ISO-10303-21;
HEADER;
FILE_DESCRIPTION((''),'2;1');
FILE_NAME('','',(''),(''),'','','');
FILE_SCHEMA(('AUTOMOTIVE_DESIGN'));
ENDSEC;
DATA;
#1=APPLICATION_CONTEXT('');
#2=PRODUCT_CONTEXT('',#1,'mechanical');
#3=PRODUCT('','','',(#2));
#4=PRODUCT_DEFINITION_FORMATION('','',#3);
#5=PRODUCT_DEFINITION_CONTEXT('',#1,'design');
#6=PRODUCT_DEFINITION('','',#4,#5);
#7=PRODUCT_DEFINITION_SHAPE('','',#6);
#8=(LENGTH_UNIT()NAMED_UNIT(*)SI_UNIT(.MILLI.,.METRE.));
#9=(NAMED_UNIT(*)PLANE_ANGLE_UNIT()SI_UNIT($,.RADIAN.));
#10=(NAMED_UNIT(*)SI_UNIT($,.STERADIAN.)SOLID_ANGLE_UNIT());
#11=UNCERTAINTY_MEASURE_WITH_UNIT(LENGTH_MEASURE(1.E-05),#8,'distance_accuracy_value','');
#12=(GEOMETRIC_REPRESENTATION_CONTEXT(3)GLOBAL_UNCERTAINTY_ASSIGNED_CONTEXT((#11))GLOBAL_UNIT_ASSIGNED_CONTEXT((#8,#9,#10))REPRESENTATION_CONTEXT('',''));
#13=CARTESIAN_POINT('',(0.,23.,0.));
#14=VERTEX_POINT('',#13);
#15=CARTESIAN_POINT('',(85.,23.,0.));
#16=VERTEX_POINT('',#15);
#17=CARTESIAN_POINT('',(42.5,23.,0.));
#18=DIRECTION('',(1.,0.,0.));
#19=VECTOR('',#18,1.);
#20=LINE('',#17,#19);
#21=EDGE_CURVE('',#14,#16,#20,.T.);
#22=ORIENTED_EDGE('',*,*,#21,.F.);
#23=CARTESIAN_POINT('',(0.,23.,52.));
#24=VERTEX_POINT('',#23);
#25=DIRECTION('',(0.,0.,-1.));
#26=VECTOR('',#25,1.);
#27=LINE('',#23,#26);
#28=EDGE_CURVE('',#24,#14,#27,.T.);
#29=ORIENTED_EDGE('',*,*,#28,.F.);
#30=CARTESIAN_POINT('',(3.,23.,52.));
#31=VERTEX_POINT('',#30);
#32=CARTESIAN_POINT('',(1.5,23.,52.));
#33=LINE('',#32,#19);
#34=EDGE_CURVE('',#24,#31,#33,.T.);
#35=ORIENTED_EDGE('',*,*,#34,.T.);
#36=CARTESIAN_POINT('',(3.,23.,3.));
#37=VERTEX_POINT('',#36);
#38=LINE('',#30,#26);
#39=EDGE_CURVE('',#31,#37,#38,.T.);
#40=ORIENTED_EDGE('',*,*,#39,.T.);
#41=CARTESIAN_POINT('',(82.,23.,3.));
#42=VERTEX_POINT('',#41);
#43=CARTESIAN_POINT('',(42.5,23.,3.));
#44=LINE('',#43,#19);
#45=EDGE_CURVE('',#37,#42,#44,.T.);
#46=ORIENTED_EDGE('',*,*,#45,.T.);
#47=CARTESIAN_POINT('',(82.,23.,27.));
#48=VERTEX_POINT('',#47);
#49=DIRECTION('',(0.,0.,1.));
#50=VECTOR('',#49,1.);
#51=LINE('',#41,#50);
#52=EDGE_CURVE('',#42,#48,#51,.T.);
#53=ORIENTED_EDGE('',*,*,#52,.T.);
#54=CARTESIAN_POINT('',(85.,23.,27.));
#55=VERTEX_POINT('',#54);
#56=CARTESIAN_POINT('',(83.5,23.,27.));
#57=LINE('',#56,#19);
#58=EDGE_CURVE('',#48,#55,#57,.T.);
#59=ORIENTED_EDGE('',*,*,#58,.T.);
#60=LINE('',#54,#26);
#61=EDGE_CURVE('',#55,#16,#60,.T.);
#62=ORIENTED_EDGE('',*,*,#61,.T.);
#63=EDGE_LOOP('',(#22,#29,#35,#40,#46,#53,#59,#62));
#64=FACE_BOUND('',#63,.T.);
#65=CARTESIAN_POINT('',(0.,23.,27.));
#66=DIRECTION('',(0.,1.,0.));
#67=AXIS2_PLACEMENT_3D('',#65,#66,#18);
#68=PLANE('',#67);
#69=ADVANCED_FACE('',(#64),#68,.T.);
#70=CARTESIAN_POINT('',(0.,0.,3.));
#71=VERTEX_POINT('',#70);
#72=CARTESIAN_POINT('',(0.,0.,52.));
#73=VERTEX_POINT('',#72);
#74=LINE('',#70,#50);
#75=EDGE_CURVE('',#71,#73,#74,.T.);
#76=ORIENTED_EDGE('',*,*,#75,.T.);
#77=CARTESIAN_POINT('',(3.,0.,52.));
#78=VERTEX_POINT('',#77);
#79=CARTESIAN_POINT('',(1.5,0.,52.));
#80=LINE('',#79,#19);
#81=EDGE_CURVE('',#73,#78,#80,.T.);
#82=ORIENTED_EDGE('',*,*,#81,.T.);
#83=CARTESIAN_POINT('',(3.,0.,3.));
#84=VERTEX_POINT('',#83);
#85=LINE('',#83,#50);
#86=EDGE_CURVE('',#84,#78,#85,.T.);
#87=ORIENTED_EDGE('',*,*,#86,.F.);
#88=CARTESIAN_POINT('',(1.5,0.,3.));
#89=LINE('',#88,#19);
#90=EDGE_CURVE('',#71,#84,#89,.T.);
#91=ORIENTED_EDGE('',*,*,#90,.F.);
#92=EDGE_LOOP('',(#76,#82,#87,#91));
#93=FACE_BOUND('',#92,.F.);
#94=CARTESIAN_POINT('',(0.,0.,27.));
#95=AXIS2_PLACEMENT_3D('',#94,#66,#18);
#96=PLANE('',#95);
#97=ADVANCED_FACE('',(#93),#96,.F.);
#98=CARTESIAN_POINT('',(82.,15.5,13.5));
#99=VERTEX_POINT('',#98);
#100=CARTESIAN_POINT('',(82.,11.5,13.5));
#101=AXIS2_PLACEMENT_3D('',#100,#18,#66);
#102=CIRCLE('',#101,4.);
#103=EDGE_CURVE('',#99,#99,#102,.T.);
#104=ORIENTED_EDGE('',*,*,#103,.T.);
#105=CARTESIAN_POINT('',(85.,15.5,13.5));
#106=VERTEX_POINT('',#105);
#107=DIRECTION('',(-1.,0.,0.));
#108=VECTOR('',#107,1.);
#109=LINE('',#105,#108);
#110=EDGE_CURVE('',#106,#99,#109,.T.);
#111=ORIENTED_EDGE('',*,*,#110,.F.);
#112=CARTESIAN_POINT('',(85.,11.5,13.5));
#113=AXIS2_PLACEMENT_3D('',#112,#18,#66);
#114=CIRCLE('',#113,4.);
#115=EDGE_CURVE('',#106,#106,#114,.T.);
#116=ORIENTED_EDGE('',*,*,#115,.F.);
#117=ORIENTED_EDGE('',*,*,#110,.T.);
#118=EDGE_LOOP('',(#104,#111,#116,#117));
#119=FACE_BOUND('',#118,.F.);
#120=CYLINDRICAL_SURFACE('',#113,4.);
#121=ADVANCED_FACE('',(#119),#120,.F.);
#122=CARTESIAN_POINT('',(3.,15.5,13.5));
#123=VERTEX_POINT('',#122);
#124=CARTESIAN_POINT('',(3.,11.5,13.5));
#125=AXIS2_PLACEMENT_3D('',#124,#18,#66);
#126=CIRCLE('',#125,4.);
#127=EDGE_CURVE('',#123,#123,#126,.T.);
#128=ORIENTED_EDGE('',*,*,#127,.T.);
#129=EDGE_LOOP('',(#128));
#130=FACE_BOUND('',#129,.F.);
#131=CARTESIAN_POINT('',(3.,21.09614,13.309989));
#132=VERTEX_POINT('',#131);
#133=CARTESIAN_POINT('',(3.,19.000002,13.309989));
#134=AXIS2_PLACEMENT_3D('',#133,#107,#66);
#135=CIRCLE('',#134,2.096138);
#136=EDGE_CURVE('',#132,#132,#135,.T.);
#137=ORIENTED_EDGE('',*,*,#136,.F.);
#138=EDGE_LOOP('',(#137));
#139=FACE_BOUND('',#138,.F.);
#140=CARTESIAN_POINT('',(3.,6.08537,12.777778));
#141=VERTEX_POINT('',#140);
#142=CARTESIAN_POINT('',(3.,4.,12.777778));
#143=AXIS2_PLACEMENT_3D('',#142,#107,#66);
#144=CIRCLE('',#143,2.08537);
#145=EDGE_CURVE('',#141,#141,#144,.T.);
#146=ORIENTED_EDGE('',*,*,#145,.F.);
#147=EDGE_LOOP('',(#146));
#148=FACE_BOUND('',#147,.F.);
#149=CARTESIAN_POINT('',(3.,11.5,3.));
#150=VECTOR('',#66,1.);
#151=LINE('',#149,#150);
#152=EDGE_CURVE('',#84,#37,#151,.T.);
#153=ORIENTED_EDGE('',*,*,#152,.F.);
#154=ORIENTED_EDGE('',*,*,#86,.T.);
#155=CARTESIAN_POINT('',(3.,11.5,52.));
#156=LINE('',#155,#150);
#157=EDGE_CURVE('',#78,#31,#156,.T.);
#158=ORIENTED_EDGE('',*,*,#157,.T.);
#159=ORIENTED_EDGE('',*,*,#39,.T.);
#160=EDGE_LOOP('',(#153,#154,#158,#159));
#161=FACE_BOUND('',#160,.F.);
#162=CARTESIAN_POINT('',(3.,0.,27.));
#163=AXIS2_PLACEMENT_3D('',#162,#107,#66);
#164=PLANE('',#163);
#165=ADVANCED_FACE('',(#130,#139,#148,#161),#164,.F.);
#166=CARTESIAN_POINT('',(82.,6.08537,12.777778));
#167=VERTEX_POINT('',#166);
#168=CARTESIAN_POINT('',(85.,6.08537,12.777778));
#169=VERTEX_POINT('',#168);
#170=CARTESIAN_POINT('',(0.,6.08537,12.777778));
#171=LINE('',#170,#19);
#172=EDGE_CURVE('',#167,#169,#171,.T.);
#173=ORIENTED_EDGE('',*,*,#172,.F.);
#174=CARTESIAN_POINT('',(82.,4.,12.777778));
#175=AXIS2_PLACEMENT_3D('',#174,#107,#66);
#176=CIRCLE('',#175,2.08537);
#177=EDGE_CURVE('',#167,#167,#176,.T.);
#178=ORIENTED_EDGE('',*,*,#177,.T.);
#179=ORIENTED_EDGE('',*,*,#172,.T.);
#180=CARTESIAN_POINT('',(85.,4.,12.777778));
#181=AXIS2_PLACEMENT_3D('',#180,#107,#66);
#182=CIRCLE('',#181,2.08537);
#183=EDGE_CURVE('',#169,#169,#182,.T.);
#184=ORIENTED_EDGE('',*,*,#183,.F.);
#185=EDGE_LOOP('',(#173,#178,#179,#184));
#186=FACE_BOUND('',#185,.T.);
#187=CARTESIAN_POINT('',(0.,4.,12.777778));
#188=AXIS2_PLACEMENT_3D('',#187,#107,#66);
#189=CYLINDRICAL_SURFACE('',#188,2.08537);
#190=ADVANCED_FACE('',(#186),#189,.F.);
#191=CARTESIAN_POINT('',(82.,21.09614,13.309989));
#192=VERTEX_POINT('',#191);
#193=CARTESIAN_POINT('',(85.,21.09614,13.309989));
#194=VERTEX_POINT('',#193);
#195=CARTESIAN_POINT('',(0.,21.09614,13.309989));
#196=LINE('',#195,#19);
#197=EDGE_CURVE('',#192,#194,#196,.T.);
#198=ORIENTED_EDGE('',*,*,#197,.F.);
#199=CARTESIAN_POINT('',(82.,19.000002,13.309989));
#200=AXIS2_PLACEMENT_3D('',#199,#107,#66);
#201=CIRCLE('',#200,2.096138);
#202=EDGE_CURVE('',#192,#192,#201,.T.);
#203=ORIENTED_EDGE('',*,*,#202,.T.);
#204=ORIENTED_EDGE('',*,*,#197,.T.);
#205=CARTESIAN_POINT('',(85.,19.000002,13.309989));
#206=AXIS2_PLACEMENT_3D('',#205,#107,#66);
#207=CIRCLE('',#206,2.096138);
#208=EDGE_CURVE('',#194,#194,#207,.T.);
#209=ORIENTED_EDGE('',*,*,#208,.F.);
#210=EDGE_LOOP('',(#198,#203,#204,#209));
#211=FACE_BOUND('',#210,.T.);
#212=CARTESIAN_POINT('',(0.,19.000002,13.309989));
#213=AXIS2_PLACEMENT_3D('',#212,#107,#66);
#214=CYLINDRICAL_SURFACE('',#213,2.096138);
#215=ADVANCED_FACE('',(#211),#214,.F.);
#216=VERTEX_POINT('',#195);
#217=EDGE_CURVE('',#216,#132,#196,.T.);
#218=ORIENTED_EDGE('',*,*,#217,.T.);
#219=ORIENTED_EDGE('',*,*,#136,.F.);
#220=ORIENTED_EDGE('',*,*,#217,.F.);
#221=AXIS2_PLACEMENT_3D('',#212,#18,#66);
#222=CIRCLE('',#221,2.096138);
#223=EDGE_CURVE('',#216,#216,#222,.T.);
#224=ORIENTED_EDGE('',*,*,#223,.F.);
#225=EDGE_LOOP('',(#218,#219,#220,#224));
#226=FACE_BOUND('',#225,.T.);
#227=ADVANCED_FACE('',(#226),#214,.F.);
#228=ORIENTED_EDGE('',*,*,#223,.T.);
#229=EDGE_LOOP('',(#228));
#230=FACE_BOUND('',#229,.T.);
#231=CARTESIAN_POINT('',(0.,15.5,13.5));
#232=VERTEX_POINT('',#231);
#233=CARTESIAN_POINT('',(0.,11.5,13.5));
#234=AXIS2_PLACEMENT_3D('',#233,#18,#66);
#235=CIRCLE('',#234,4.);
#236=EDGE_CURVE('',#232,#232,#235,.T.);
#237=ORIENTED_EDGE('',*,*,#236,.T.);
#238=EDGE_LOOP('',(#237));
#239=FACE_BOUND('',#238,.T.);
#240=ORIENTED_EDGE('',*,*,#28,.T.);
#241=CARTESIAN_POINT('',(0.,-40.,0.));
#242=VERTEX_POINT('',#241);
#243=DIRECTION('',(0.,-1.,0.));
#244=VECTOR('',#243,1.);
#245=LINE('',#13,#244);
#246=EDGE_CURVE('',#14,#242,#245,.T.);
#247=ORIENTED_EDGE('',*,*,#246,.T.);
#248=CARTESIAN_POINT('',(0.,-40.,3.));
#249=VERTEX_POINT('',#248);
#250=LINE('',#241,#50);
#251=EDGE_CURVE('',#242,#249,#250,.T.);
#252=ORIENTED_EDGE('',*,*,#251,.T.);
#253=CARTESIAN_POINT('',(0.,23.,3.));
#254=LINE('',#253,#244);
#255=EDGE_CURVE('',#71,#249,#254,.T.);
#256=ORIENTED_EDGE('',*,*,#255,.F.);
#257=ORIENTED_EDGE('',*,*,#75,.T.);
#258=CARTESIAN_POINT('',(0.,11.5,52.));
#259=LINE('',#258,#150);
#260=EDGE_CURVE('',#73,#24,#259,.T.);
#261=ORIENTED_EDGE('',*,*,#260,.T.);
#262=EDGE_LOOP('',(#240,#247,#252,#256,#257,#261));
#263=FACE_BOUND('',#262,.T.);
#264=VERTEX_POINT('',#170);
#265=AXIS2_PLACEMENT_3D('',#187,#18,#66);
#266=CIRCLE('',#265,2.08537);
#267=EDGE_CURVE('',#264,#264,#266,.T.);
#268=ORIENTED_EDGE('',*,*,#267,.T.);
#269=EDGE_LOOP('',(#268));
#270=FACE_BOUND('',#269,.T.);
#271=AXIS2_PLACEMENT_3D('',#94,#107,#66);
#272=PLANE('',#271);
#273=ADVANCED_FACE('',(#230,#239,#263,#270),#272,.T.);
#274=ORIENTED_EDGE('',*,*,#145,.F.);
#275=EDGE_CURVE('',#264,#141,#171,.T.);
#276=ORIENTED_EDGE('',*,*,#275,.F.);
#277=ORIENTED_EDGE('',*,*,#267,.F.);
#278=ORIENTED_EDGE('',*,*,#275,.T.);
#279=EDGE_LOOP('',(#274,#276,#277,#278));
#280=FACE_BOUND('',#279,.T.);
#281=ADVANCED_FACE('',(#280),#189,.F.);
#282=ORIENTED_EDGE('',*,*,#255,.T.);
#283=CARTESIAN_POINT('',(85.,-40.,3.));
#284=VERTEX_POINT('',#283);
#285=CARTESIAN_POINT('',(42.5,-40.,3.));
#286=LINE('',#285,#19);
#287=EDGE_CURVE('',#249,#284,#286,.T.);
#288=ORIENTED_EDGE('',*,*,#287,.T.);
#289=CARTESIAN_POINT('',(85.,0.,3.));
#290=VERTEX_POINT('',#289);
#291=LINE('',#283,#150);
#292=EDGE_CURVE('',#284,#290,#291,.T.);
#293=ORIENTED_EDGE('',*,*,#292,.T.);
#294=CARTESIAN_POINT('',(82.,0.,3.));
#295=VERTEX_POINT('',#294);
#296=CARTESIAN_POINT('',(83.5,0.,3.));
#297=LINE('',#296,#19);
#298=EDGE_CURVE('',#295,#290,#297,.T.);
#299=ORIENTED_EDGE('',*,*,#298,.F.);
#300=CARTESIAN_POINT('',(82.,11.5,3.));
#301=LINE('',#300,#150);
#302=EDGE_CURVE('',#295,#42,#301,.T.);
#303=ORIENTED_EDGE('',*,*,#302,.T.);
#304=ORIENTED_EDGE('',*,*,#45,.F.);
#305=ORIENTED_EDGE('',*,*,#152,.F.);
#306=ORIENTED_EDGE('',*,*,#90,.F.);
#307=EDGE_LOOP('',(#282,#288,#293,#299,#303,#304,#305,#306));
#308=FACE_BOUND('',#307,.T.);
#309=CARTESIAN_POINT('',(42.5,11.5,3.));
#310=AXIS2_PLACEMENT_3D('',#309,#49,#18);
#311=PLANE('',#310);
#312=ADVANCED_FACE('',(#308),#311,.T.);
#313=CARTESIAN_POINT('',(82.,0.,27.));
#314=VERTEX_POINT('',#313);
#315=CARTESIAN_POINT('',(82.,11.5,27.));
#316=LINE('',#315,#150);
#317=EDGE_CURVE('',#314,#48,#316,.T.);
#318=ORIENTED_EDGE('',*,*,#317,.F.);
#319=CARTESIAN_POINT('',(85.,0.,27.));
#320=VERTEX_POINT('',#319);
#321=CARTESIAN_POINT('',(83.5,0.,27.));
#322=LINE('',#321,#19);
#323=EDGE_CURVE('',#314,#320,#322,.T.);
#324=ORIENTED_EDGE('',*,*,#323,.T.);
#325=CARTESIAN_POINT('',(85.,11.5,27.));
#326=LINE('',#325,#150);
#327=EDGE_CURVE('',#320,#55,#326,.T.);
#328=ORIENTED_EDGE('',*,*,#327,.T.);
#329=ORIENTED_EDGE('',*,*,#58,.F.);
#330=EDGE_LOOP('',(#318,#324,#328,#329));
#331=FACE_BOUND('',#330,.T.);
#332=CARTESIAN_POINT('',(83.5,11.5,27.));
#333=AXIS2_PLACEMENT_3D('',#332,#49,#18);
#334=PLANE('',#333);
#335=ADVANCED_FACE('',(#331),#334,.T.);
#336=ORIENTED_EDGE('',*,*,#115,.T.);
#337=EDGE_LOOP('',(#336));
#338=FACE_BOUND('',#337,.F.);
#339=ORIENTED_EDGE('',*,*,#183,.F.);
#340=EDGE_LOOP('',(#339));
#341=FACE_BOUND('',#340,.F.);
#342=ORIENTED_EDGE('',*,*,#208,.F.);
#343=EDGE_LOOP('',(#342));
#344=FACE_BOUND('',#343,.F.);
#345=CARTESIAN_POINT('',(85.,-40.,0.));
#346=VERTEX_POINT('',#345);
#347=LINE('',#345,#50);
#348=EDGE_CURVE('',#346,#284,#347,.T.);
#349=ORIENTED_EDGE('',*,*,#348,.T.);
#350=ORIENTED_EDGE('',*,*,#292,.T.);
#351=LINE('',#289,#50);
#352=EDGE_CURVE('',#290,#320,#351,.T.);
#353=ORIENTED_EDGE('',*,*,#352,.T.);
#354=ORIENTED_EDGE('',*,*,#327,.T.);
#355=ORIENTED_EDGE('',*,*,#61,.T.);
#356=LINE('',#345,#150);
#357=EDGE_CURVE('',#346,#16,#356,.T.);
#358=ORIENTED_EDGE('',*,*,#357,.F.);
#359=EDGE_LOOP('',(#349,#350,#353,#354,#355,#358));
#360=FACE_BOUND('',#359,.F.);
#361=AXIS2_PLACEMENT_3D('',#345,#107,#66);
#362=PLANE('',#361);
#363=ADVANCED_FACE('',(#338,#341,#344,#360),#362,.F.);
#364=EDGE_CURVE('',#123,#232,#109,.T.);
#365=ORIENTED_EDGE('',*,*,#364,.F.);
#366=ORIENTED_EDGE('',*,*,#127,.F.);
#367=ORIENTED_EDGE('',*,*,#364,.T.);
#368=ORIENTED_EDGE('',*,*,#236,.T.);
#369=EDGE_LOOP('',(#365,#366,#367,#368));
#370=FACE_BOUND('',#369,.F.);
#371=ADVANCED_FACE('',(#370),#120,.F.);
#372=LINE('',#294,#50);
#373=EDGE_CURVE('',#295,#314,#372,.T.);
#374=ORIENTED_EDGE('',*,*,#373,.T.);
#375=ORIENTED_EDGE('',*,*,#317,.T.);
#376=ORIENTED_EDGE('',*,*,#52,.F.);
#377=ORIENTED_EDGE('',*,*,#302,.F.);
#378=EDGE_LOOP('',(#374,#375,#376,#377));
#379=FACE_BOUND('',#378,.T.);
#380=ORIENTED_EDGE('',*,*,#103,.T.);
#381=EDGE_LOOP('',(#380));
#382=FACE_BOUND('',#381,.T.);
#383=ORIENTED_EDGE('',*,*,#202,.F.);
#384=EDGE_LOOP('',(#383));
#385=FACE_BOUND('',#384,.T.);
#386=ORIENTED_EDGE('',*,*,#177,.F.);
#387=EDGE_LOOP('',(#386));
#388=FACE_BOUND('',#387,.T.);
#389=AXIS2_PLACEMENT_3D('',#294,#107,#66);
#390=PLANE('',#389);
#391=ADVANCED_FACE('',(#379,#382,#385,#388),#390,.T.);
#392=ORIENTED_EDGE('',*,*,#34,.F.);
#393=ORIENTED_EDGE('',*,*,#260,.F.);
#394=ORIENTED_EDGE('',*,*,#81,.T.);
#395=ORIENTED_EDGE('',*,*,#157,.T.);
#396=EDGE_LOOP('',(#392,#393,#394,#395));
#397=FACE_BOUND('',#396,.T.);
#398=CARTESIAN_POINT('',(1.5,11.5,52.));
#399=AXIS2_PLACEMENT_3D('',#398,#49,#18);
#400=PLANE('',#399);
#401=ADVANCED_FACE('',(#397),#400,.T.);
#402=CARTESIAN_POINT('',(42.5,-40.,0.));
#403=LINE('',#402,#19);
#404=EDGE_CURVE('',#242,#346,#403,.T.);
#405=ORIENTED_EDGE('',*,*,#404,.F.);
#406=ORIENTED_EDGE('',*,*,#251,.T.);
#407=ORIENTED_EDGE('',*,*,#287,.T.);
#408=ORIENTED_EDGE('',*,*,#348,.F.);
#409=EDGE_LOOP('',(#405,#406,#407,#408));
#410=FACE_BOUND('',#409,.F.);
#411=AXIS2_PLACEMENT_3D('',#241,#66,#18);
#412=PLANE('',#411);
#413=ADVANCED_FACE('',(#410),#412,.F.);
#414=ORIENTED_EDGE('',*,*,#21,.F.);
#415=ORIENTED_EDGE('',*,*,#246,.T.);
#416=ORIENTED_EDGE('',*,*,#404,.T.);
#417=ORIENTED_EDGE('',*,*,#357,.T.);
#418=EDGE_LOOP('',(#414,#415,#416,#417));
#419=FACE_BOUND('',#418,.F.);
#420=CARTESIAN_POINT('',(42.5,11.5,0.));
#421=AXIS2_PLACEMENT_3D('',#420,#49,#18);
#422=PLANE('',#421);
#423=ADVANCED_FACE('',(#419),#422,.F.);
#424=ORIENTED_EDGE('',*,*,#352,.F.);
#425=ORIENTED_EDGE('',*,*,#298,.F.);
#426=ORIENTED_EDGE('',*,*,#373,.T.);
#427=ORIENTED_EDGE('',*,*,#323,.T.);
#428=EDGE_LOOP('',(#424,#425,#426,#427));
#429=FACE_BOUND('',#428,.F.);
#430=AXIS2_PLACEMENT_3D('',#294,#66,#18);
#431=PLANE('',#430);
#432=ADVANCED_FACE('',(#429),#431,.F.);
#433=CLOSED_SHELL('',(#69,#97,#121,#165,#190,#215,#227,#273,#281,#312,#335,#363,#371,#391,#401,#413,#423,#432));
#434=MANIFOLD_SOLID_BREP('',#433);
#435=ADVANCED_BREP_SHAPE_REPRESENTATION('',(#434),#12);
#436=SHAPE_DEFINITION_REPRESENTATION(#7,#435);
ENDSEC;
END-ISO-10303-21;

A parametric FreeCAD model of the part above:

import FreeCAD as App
import Part
import Sketcher

V = App.Vector
Q = App.Units.Quantity


def add_polygon(sketch, points):
    """Adds a closed chain of lines whose ends are joined by coincident constraints."""
    first, n = sketch.GeometryCount, len(points)
    for a, b in zip(points, points[1:] + points[:1]):
        sketch.addGeometry(Part.LineSegment(App.Vector(*a, 0), App.Vector(*b, 0)), False)
    for i in range(n):
        sketch.addConstraint(Sketcher.Constraint("Coincident", first + i, 2, first + (i + 1) % n, 1))

doc = App.newDocument("Part")
body = doc.addObject("PartDesign::Body", "Body")

sketch1 = doc.addObject("Sketcher::SketchObject", "Sketch")
body.addObject(sketch1)
sketch1.AttachmentSupport = (doc.XY_Plane, [""])
sketch1.MapMode = "FlatFace"
add_polygon(sketch1, [(0, 23), (0, -40), (85, -40), (85, 23)])
sketch1.addConstraint([
    Sketcher.Constraint("Vertical", 0),
    Sketcher.Constraint("Horizontal", 1),
    Sketcher.Constraint("Vertical", 2),
    Sketcher.Constraint("Horizontal", 3),
    Sketcher.Constraint("PointOnObject", 0, 2, -2),
    Sketcher.Constraint("DistanceX", 1, 1, 1, 2, Q("85 mm")),
    Sketcher.Constraint("DistanceY", 0, 2, 0, 1, Q("63 mm")),
    Sketcher.Constraint("DistanceY", 0, 2, -1, 1, Q("40 mm")),
])
pad1 = doc.addObject("PartDesign::Pad", "Pad")
body.addObject(pad1)
pad1.Profile = sketch1
pad1.Length = 3

sketch2 = doc.addObject("Sketcher::SketchObject", "Sketch001")
body.addObject(sketch2)
sketch2.AttachmentSupport = (doc.XY_Plane, [""])
sketch2.MapMode = "FlatFace"
sketch2.AttachmentOffset = App.Placement(V(0, 0, 3), App.Rotation())
add_polygon(sketch2, [(0, 23), (0, 0), (3, 0), (3, 23)])
add_polygon(sketch2, [(82, 23), (82, 0), (85, 0), (85, 23)])
sketch2.addConstraint([
    Sketcher.Constraint("Vertical", 0),
    Sketcher.Constraint("Horizontal", 1),
    Sketcher.Constraint("Vertical", 2),
    Sketcher.Constraint("Horizontal", 3),
    Sketcher.Constraint("Vertical", 4),
    Sketcher.Constraint("Horizontal", 5),
    Sketcher.Constraint("Vertical", 6),
    Sketcher.Constraint("Horizontal", 7),
    Sketcher.Constraint("Coincident", 0, 2, -1, 1),
    Sketcher.Constraint("PointOnObject", 4, 2, -1),
    Sketcher.Constraint("Horizontal", 3, 2, 6, 2),
    Sketcher.Constraint("Equal", 3, 5),
    Sketcher.Constraint("DistanceX", 1, 1, 1, 2, Q("3 mm")),
    Sketcher.Constraint("DistanceY", 0, 2, 0, 1, Q("23 mm")),
    Sketcher.Constraint("DistanceX", -1, 1, 4, 2, Q("82 mm")),
])
pad2 = doc.addObject("PartDesign::Pad", "Pad001")
body.addObject(pad2)
pad2.Profile = sketch2
pad2.Length = 24

sketch3 = doc.addObject("Sketcher::SketchObject", "Sketch002")
body.addObject(sketch3)
sketch3.AttachmentSupport = (doc.XY_Plane, [""])
sketch3.MapMode = "FlatFace"
sketch3.AttachmentOffset = App.Placement(V(0, 0, 27), App.Rotation())
add_polygon(sketch3, [(0, 23), (0, 0), (3, 0), (3, 23)])
sketch3.addConstraint([
    Sketcher.Constraint("Vertical", 0),
    Sketcher.Constraint("Horizontal", 1),
    Sketcher.Constraint("Vertical", 2),
    Sketcher.Constraint("Horizontal", 3),
    Sketcher.Constraint("Coincident", 0, 2, -1, 1),
    Sketcher.Constraint("DistanceX", 1, 1, 1, 2, Q("3 mm")),
    Sketcher.Constraint("DistanceY", 0, 2, 0, 1, Q("23 mm")),
])
pad3 = doc.addObject("PartDesign::Pad", "Pad002")
body.addObject(pad3)
pad3.Profile = sketch3
pad3.Length = 25

sketch4 = doc.addObject("Sketcher::SketchObject", "Sketch003")
body.addObject(sketch4)
sketch4.AttachmentSupport = (doc.YZ_Plane, [""])
sketch4.MapMode = "FlatFace"
sketch4.AttachmentOffset = App.Placement(V(0, 0, 85), App.Rotation())
sketch4.addGeometry(Part.Circle(V(11.5, 13.5, 0), V(0, 0, 1), 4), False)
sketch4.addConstraint([
    Sketcher.Constraint("Diameter", 0, Q("8 mm")),
    Sketcher.Constraint("DistanceX", -1, 1, 0, 3, Q("11.5 mm")),
    Sketcher.Constraint("DistanceY", -1, 1, 0, 3, Q("13.5 mm")),
])
pocket1 = doc.addObject("PartDesign::Pocket", "Pocket")
body.addObject(pocket1)
pocket1.Profile = sketch4
pocket1.Length = 200

sketch5 = doc.addObject("Sketcher::SketchObject", "Sketch004")
body.addObject(sketch5)
sketch5.AttachmentSupport = (doc.YZ_Plane, [""])
sketch5.MapMode = "FlatFace"
sketch5.addGeometry(Part.Circle(V(19, 13.3, 0), V(0, 0, 1), 2.1), False)
sketch5.addConstraint([
    Sketcher.Constraint("DistanceX", -1, 1, 0, 3, Q("19.000002 mm")),
    Sketcher.Constraint("Diameter", 0, Q("4.192276 mm")),
    Sketcher.Constraint("DistanceY", -1, 1, 0, 3, Q("13.309989 mm")),
])
pocket2 = doc.addObject("PartDesign::Pocket", "Pocket001")
body.addObject(pocket2)
pocket2.Profile = sketch5
pocket2.Length = 101.9
pocket2.Reversed = True

sketch6 = doc.addObject("Sketcher::SketchObject", "Sketch005")
body.addObject(sketch6)
sketch6.AttachmentSupport = (doc.YZ_Plane, [""])
sketch6.MapMode = "FlatFace"
sketch6.addGeometry(Part.Circle(V(4, 12.8, 0), V(0, 0, 1), 2.1), False)
sketch6.addConstraint([
    Sketcher.Constraint("DistanceX", -1, 1, 0, 3, Q("4 mm")),
    Sketcher.Constraint("Diameter", 0, Q("4.17074 mm")),
    Sketcher.Constraint("DistanceY", -1, 1, 0, 3, Q("12.777778 mm")),
])
pocket3 = doc.addObject("PartDesign::Pocket", "Pocket002")
body.addObject(pocket3)
pocket3.Profile = sketch6
pocket3.Length = 136.8
pocket3.Reversed = True

doc.recompute()
